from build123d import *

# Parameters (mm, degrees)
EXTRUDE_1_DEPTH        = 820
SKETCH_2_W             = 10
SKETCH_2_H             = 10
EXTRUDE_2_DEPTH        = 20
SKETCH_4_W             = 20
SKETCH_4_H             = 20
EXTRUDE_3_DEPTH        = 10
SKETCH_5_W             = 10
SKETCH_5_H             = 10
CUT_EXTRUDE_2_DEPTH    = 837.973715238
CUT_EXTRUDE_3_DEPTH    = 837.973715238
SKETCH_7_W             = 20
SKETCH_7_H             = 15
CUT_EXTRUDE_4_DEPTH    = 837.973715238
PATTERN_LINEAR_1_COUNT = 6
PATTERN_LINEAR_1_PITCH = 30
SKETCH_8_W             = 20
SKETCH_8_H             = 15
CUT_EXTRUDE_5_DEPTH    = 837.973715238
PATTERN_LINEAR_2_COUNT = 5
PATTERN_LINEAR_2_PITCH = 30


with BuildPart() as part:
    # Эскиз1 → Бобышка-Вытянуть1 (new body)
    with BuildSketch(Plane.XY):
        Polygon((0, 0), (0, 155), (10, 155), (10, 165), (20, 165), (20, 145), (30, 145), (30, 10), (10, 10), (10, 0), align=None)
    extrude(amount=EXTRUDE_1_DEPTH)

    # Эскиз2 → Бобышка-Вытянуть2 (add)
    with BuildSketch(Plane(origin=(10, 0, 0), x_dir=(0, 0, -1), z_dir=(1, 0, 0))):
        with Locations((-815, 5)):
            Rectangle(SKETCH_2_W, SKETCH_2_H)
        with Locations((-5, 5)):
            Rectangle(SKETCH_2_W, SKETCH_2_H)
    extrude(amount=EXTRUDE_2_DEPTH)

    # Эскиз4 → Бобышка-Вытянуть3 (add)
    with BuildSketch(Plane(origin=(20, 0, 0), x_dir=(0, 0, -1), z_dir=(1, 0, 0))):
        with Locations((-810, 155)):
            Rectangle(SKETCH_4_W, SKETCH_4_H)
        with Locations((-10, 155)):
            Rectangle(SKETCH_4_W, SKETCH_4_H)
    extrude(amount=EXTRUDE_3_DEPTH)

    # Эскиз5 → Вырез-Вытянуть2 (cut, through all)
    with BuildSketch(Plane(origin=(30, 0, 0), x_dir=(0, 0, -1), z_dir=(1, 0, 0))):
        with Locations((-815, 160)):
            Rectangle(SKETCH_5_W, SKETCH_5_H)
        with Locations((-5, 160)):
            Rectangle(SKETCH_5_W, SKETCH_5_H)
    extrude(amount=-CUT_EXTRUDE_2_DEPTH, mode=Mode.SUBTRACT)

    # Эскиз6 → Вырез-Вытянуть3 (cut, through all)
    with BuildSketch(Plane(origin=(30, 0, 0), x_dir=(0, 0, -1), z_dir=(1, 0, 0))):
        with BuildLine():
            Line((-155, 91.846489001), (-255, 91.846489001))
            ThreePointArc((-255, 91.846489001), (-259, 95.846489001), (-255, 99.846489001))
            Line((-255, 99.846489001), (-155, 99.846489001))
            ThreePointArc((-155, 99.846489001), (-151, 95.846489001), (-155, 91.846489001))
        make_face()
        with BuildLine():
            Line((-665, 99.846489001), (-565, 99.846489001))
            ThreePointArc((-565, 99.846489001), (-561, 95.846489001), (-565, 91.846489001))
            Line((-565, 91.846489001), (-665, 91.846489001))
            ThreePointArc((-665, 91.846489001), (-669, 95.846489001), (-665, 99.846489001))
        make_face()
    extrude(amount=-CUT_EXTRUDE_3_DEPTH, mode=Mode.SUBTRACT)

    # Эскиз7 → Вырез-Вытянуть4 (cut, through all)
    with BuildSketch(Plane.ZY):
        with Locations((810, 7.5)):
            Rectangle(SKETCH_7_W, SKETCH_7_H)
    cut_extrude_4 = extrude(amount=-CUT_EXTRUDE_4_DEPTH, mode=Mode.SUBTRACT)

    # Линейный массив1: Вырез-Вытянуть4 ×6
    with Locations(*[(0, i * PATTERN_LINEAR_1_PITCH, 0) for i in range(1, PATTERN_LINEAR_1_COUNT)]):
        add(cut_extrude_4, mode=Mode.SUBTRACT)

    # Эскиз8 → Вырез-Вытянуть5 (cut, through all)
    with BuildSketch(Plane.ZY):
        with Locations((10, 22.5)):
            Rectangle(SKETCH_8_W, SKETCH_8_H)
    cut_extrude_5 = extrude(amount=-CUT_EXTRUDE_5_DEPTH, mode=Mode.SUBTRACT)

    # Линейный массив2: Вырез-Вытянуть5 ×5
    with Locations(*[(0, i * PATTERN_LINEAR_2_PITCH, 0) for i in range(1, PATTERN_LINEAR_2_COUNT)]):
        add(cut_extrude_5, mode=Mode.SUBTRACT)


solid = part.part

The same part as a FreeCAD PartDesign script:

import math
import FreeCAD as App
import Part
import Sketcher
from FreeCAD import Vector
Q = App.Units.Quantity


def add_polygon(sketch, points):
    """Adds a closed chain of lines whose ends are joined by coincident constraints."""
    first, n = sketch.GeometryCount, len(points)
    for a, b in zip(points, points[1:] + points[:1]):
        sketch.addGeometry(Part.LineSegment(App.Vector(*a, 0), App.Vector(*b, 0)), False)
    for i in range(n):
        sketch.addConstraint(Sketcher.Constraint("Coincident", first + i, 2, first + (i + 1) % n, 1))

doc = App.newDocument("Part")
params = doc.addObject("Spreadsheet::Sheet", "Params")
for row, (alias, value) in enumerate([
    ("sketch1_width", "10 mm"),
    ("sketch1_height", "155 mm"),
    ("pad1_length", "820 mm"),
    ("sketch2_width", "10 mm"),
    ("pad2_length", "20 mm"),
    ("sketch3_width", "20 mm"),
    ("pad3_length", "10 mm"),
    ("sketch4_width", "10 mm"),
    ("sketch5_radius", "4 mm"),
    ("sketch5_height", "100 mm"),
    ("sketch6_width", "15 mm"),
    ("sketch6_height", "20 mm"),
    ("linearpattern_pitch", "30 mm"),
    ("sketch7_width", "15 mm"),
    ("sketch7_height", "20 mm"),
    ("linearpattern2_pitch", "30 mm"),
], start=1):
    params.set(f"A{row}", alias)
    params.set(f"B{row}", "=" + value)
    params.setAlias(f"B{row}", alias)

body = doc.addObject("PartDesign::Body", "Body")

# Sketch on XY plane
sketch1 = body.newObject("Sketcher::SketchObject", "Sketch")
sketch1.AttachmentSupport = (doc.getObject("XY_Plane"), [""])
sketch1.MapMode = "FlatFace"
add_polygon(sketch1, [(0, 155), (0, 0), (10, 0), (10, 10), (30, 10), (30, 145), (20, 145), (20, 165), (10, 165), (10, 155)])  # lines 0-9
sketch1.addConstraint([
    Sketcher.Constraint("Vertical", 0),
    Sketcher.Constraint("Horizontal", 1),
    Sketcher.Constraint("Vertical", 2),
    Sketcher.Constraint("Horizontal", 3),
    Sketcher.Constraint("Vertical", 4),
    Sketcher.Constraint("Horizontal", 5),
    Sketcher.Constraint("Vertical", 6),
    Sketcher.Constraint("Horizontal", 7),
    Sketcher.Constraint("Vertical", 8),
    Sketcher.Constraint("Horizontal", 9),
    Sketcher.Constraint("Coincident", 0, 2, -1, 1),
    Sketcher.Constraint("Vertical", 2, 2, 7, 2),
    Sketcher.Constraint("Equal", 1, 5),
    Sketcher.Constraint("Equal", 5, 7),
    Sketcher.Constraint("Equal", 9, 2),
    Sketcher.Constraint("Equal", 3, 6),
    Sketcher.Constraint("Equal", 2, 8),
    Sketcher.Constraint("DistanceX", 1, 1, 1, 2, Q("10 mm")),
    Sketcher.Constraint("DistanceY", 0, 2, 0, 1, Q("155 mm")),
])
sketch1.setExpression("Constraints[27]", "Params.sketch1_width")
sketch1.setExpression("Constraints[28]", "Params.sketch1_height")
pad1 = body.newObject("PartDesign::Pad", "Pad")
pad1.Profile = sketch1
pad1.setExpression("Length", "Params.pad1_length")

# Sketch on YZ plane
sketch2 = body.newObject("Sketcher::SketchObject", "Sketch001")
sketch2.AttachmentSupport = (doc.getObject("YZ_Plane"), [""])
sketch2.MapMode = "FlatFace"
sketch2.AttachmentOffset = App.Placement(Vector(0, 0, 10), App.Rotation())
add_polygon(sketch2, [(10, 820), (0, 820), (0, 810), (10, 810)])  # lines 0-3
add_polygon(sketch2, [(10, 10), (0, 10), (0, 0), (10, 0)])  # lines 4-7
sketch2.addConstraint([
    Sketcher.Constraint("Horizontal", 0),
    Sketcher.Constraint("Vertical", 1),
    Sketcher.Constraint("Horizontal", 2),
    Sketcher.Constraint("Vertical", 3),
    Sketcher.Constraint("Horizontal", 4),
    Sketcher.Constraint("Vertical", 5),
    Sketcher.Constraint("Horizontal", 6),
    Sketcher.Constraint("Vertical", 7),
    Sketcher.Constraint("Coincident", 5, 2, -1, 1),
    Sketcher.Constraint("PointOnObject", 0, 2, -2),
    Sketcher.Constraint("Vertical", 3, 2, 6, 2),
    Sketcher.Constraint("Equal", 6, 1),
    Sketcher.Constraint("Equal", 3, 5),
    Sketcher.Constraint("DistanceX", 0, 2, 0, 1, Q("10 mm")),
    Sketcher.Constraint("DistanceY", -1, 1, 0, 2, Q("820 mm")),
])
sketch2.setExpression("Constraints[21]", "Params.sketch2_width")
pad2 = body.newObject("PartDesign::Pad", "Pad001")
pad2.Profile = sketch2
pad2.setExpression("Length", "Params.pad2_length")

# Sketch on YZ plane
sketch3 = body.newObject("Sketcher::SketchObject", "Sketch002")
sketch3.AttachmentSupport = (doc.getObject("YZ_Plane"), [""])
sketch3.MapMode = "FlatFace"
sketch3.AttachmentOffset = App.Placement(Vector(0, 0, 20), App.Rotation())
add_polygon(sketch3, [(165, 820), (145, 820), (145, 800), (165, 800)])  # lines 0-3
add_polygon(sketch3, [(165, 20), (145, 20), (145, 0), (165, 0)])  # lines 4-7
sketch3.addConstraint([
    Sketcher.Constraint("Horizontal", 0),
    Sketcher.Constraint("Vertical", 1),
    Sketcher.Constraint("Horizontal", 2),
    Sketcher.Constraint("Vertical", 3),
    Sketcher.Constraint("Horizontal", 4),
    Sketcher.Constraint("Vertical", 5),
    Sketcher.Constraint("Horizontal", 6),
    Sketcher.Constraint("Vertical", 7),
    Sketcher.Constraint("PointOnObject", 5, 2, -1),
    Sketcher.Constraint("Vertical", 1, 2, 4, 2),
    Sketcher.Constraint("Vertical", 3, 2, 6, 2),
    Sketcher.Constraint("Equal", 6, 1),
    Sketcher.Constraint("Equal", 3, 5),
    Sketcher.Constraint("DistanceX", 0, 2, 0, 1, Q("20 mm")),
    Sketcher.Constraint("DistanceX", -1, 1, 0, 2, Q("145 mm")),
    Sketcher.Constraint("DistanceY", -1, 1, 0, 2, Q("820 mm")),
])
sketch3.setExpression("Constraints[21]", "Params.sketch3_width")
pad3 = body.newObject("PartDesign::Pad", "Pad002")
pad3.Profile = sketch3
pad3.setExpression("Length", "Params.pad3_length")

# Sketch on YZ plane
sketch4 = body.newObject("Sketcher::SketchObject", "Sketch003")
sketch4.AttachmentSupport = (doc.getObject("YZ_Plane"), [""])
sketch4.MapMode = "FlatFace"
sketch4.AttachmentOffset = App.Placement(Vector(0, 0, 30), App.Rotation())
add_polygon(sketch4, [(165, 820), (155, 820), (155, 810), (165, 810)])  # lines 0-3
add_polygon(sketch4, [(165, 10), (155, 10), (155, 0), (165, 0)])  # lines 4-7
sketch4.addConstraint([
    Sketcher.Constraint("Horizontal", 0),
    Sketcher.Constraint("Vertical", 1),
    Sketcher.Constraint("Horizontal", 2),
    Sketcher.Constraint("Vertical", 3),
    Sketcher.Constraint("Horizontal", 4),
    Sketcher.Constraint("Vertical", 5),
    Sketcher.Constraint("Horizontal", 6),
    Sketcher.Constraint("Vertical", 7),
    Sketcher.Constraint("PointOnObject", 5, 2, -1),
    Sketcher.Constraint("Vertical", 1, 2, 4, 2),
    Sketcher.Constraint("Vertical", 3, 2, 6, 2),
    Sketcher.Constraint("Equal", 6, 1),
    Sketcher.Constraint("Equal", 3, 5),
    Sketcher.Constraint("DistanceX", 0, 2, 0, 1, Q("10 mm")),
    Sketcher.Constraint("DistanceX", -1, 1, 0, 2, Q("155 mm")),
    Sketcher.Constraint("DistanceY", -1, 1, 0, 2, Q("820 mm")),
])
sketch4.setExpression("Constraints[21]", "Params.sketch4_width")
pocket1 = body.newObject("PartDesign::Pocket", "Pocket")
pocket1.Profile = sketch4
pocket1.Type = "ThroughAll"

# Sketch on YZ plane
sketch5 = body.newObject("Sketcher::SketchObject", "Sketch004")
sketch5.AttachmentSupport = (doc.getObject("YZ_Plane"), [""])
sketch5.MapMode = "FlatFace"
sketch5.AttachmentOffset = App.Placement(Vector(0, 0, 30), App.Rotation())
sketch5.addGeometry([
    Part.LineSegment(Vector(91.846489, 255, 0), Vector(91.846489, 155, 0)),  # 0
    Part.ArcOfCircle(Part.Circle(Vector(95.846489, 155, 0), Vector(0, 0, 1), 4), math.radians(180), math.radians(360)),  # 1
    Part.LineSegment(Vector(99.846489, 155, 0), Vector(99.846489, 255, 0)),  # 2
    Part.ArcOfCircle(Part.Circle(Vector(95.846489, 255, 0), Vector(0, 0, 1), 4), math.radians(0), math.radians(180)),  # 3
    Part.LineSegment(Vector(99.846489, 565, 0), Vector(99.846489, 665, 0)),  # 4
    Part.ArcOfCircle(Part.Circle(Vector(95.846489, 665, 0), Vector(0, 0, 1), 4), math.radians(0), math.radians(180)),  # 5
    Part.LineSegment(Vector(91.846489, 665, 0), Vector(91.846489, 565, 0)),  # 6
    Part.ArcOfCircle(Part.Circle(Vector(95.846489, 565, 0), Vector(0, 0, 1), 4), math.radians(180), math.radians(360)),  # 7
], False)
sketch5.addConstraint([
    Sketcher.Constraint("Tangent", 0, 2, 1, 1),
    Sketcher.Constraint("Tangent", 1, 2, 2, 1),
    Sketcher.Constraint("Tangent", 2, 2, 3, 1),
    Sketcher.Constraint("Tangent", 3, 2, 0, 1),
    Sketcher.Constraint("Tangent", 4, 2, 5, 1),
    Sketcher.Constraint("Tangent", 5, 2, 6, 1),
    Sketcher.Constraint("Tangent", 6, 2, 7, 1),
    Sketcher.Constraint("Tangent", 7, 2, 4, 1),
    Sketcher.Constraint("Vertical", 0),
    Sketcher.Constraint("Vertical", 2),
    Sketcher.Constraint("Vertical", 4),
    Sketcher.Constraint("Vertical", 6),
    Sketcher.Constraint("Equal", 3, 5),
    Sketcher.Constraint("Vertical", 3, 3, 5, 3),
    Sketcher.Constraint("Equal", 2, 4),
    Sketcher.Constraint("Radius", 1, Q("4 mm")),
    Sketcher.Constraint("DistanceY", 0, 2, 0, 1, Q("100 mm")),
    Sketcher.Constraint("DistanceY", -1, 1, 1, 3, Q("155 mm")),
    Sketcher.Constraint("DistanceY", -1, 1, 5, 3, Q("665 mm")),
    Sketcher.Constraint("DistanceX", -1, 1, 1, 3, Q("95.846489 mm")),
])
sketch5.setExpression("Constraints[15]", "Params.sketch5_radius")
sketch5.setExpression("Constraints[16]", "Params.sketch5_height")
pocket2 = body.newObject("PartDesign::Pocket", "Pocket001")
pocket2.Profile = sketch5
pocket2.Type = "ThroughAll"

# Sketch on YZ plane
sketch6 = body.newObject("Sketcher::SketchObject", "Sketch005")
sketch6.AttachmentSupport = (doc.getObject("YZ_Plane"), [""])
sketch6.MapMode = "FlatFace"
add_polygon(sketch6, [(15, 800), (0, 800), (0, 820), (15, 820)])  # lines 0-3
sketch6.addConstraint([
    Sketcher.Constraint("Horizontal", 0),
    Sketcher.Constraint("Vertical", 1),
    Sketcher.Constraint("Horizontal", 2),
    Sketcher.Constraint("Vertical", 3),
    Sketcher.Constraint("PointOnObject", 0, 2, -2),
    Sketcher.Constraint("DistanceX", 0, 2, 0, 1, Q("15 mm")),
    Sketcher.Constraint("DistanceY", 1, 1, 1, 2, Q("20 mm")),
    Sketcher.Constraint("DistanceY", -1, 1, 0, 2, Q("800 mm")),
])
sketch6.setExpression("Constraints[9]", "Params.sketch6_width")
sketch6.setExpression("Constraints[10]", "Params.sketch6_height")
pocket3 = body.newObject("PartDesign::Pocket", "Pocket002")
pocket3.Profile = sketch6
pocket3.Type = "ThroughAll"
pocket3.Reversed = True
doc.recompute()

linearpattern = body.newObject("PartDesign::LinearPattern", "LinearPattern")
linearpattern.Originals = [pocket3]
linearpattern.Direction = (doc.getObject("Y_Axis"), [""])
linearpattern.Mode = "offset"
linearpattern.setExpression("Offset", "Params.linearpattern_pitch")
linearpattern.Occurrences = 6
body.Tip = linearpattern

# Sketch on YZ plane
sketch7 = body.newObject("Sketcher::SketchObject", "Sketch006")
sketch7.AttachmentSupport = (doc.getObject("YZ_Plane"), [""])
sketch7.MapMode = "FlatFace"
add_polygon(sketch7, [(30, 0), (15, 0), (15, 20), (30, 20)])  # lines 0-3
sketch7.addConstraint([
    Sketcher.Constraint("Horizontal", 0),
    Sketcher.Constraint("Vertical", 1),
    Sketcher.Constraint("Horizontal", 2),
    Sketcher.Constraint("Vertical", 3),
    Sketcher.Constraint("PointOnObject", 0, 2, -1),
    Sketcher.Constraint("DistanceX", 0, 2, 0, 1, Q("15 mm")),
    Sketcher.Constraint("DistanceY", 1, 1, 1, 2, Q("20 mm")),
    Sketcher.Constraint("DistanceX", -1, 1, 0, 2, Q("15 mm")),
])
sketch7.setExpression("Constraints[9]", "Params.sketch7_width")
sketch7.setExpression("Constraints[10]", "Params.sketch7_height")
pocket4 = body.newObject("PartDesign::Pocket", "Pocket003")
pocket4.Profile = sketch7
pocket4.Type = "ThroughAll"
pocket4.Reversed = True
doc.recompute()

linearpattern2 = body.newObject("PartDesign::LinearPattern", "LinearPattern001")
linearpattern2.Originals = [pocket4]
linearpattern2.Direction = (doc.getObject("Y_Axis"), [""])
linearpattern2.Mode = "offset"
linearpattern2.setExpression("Offset", "Params.linearpattern2_pitch")
linearpattern2.Occurrences = 5
body.Tip = linearpattern2

doc.recompute()
